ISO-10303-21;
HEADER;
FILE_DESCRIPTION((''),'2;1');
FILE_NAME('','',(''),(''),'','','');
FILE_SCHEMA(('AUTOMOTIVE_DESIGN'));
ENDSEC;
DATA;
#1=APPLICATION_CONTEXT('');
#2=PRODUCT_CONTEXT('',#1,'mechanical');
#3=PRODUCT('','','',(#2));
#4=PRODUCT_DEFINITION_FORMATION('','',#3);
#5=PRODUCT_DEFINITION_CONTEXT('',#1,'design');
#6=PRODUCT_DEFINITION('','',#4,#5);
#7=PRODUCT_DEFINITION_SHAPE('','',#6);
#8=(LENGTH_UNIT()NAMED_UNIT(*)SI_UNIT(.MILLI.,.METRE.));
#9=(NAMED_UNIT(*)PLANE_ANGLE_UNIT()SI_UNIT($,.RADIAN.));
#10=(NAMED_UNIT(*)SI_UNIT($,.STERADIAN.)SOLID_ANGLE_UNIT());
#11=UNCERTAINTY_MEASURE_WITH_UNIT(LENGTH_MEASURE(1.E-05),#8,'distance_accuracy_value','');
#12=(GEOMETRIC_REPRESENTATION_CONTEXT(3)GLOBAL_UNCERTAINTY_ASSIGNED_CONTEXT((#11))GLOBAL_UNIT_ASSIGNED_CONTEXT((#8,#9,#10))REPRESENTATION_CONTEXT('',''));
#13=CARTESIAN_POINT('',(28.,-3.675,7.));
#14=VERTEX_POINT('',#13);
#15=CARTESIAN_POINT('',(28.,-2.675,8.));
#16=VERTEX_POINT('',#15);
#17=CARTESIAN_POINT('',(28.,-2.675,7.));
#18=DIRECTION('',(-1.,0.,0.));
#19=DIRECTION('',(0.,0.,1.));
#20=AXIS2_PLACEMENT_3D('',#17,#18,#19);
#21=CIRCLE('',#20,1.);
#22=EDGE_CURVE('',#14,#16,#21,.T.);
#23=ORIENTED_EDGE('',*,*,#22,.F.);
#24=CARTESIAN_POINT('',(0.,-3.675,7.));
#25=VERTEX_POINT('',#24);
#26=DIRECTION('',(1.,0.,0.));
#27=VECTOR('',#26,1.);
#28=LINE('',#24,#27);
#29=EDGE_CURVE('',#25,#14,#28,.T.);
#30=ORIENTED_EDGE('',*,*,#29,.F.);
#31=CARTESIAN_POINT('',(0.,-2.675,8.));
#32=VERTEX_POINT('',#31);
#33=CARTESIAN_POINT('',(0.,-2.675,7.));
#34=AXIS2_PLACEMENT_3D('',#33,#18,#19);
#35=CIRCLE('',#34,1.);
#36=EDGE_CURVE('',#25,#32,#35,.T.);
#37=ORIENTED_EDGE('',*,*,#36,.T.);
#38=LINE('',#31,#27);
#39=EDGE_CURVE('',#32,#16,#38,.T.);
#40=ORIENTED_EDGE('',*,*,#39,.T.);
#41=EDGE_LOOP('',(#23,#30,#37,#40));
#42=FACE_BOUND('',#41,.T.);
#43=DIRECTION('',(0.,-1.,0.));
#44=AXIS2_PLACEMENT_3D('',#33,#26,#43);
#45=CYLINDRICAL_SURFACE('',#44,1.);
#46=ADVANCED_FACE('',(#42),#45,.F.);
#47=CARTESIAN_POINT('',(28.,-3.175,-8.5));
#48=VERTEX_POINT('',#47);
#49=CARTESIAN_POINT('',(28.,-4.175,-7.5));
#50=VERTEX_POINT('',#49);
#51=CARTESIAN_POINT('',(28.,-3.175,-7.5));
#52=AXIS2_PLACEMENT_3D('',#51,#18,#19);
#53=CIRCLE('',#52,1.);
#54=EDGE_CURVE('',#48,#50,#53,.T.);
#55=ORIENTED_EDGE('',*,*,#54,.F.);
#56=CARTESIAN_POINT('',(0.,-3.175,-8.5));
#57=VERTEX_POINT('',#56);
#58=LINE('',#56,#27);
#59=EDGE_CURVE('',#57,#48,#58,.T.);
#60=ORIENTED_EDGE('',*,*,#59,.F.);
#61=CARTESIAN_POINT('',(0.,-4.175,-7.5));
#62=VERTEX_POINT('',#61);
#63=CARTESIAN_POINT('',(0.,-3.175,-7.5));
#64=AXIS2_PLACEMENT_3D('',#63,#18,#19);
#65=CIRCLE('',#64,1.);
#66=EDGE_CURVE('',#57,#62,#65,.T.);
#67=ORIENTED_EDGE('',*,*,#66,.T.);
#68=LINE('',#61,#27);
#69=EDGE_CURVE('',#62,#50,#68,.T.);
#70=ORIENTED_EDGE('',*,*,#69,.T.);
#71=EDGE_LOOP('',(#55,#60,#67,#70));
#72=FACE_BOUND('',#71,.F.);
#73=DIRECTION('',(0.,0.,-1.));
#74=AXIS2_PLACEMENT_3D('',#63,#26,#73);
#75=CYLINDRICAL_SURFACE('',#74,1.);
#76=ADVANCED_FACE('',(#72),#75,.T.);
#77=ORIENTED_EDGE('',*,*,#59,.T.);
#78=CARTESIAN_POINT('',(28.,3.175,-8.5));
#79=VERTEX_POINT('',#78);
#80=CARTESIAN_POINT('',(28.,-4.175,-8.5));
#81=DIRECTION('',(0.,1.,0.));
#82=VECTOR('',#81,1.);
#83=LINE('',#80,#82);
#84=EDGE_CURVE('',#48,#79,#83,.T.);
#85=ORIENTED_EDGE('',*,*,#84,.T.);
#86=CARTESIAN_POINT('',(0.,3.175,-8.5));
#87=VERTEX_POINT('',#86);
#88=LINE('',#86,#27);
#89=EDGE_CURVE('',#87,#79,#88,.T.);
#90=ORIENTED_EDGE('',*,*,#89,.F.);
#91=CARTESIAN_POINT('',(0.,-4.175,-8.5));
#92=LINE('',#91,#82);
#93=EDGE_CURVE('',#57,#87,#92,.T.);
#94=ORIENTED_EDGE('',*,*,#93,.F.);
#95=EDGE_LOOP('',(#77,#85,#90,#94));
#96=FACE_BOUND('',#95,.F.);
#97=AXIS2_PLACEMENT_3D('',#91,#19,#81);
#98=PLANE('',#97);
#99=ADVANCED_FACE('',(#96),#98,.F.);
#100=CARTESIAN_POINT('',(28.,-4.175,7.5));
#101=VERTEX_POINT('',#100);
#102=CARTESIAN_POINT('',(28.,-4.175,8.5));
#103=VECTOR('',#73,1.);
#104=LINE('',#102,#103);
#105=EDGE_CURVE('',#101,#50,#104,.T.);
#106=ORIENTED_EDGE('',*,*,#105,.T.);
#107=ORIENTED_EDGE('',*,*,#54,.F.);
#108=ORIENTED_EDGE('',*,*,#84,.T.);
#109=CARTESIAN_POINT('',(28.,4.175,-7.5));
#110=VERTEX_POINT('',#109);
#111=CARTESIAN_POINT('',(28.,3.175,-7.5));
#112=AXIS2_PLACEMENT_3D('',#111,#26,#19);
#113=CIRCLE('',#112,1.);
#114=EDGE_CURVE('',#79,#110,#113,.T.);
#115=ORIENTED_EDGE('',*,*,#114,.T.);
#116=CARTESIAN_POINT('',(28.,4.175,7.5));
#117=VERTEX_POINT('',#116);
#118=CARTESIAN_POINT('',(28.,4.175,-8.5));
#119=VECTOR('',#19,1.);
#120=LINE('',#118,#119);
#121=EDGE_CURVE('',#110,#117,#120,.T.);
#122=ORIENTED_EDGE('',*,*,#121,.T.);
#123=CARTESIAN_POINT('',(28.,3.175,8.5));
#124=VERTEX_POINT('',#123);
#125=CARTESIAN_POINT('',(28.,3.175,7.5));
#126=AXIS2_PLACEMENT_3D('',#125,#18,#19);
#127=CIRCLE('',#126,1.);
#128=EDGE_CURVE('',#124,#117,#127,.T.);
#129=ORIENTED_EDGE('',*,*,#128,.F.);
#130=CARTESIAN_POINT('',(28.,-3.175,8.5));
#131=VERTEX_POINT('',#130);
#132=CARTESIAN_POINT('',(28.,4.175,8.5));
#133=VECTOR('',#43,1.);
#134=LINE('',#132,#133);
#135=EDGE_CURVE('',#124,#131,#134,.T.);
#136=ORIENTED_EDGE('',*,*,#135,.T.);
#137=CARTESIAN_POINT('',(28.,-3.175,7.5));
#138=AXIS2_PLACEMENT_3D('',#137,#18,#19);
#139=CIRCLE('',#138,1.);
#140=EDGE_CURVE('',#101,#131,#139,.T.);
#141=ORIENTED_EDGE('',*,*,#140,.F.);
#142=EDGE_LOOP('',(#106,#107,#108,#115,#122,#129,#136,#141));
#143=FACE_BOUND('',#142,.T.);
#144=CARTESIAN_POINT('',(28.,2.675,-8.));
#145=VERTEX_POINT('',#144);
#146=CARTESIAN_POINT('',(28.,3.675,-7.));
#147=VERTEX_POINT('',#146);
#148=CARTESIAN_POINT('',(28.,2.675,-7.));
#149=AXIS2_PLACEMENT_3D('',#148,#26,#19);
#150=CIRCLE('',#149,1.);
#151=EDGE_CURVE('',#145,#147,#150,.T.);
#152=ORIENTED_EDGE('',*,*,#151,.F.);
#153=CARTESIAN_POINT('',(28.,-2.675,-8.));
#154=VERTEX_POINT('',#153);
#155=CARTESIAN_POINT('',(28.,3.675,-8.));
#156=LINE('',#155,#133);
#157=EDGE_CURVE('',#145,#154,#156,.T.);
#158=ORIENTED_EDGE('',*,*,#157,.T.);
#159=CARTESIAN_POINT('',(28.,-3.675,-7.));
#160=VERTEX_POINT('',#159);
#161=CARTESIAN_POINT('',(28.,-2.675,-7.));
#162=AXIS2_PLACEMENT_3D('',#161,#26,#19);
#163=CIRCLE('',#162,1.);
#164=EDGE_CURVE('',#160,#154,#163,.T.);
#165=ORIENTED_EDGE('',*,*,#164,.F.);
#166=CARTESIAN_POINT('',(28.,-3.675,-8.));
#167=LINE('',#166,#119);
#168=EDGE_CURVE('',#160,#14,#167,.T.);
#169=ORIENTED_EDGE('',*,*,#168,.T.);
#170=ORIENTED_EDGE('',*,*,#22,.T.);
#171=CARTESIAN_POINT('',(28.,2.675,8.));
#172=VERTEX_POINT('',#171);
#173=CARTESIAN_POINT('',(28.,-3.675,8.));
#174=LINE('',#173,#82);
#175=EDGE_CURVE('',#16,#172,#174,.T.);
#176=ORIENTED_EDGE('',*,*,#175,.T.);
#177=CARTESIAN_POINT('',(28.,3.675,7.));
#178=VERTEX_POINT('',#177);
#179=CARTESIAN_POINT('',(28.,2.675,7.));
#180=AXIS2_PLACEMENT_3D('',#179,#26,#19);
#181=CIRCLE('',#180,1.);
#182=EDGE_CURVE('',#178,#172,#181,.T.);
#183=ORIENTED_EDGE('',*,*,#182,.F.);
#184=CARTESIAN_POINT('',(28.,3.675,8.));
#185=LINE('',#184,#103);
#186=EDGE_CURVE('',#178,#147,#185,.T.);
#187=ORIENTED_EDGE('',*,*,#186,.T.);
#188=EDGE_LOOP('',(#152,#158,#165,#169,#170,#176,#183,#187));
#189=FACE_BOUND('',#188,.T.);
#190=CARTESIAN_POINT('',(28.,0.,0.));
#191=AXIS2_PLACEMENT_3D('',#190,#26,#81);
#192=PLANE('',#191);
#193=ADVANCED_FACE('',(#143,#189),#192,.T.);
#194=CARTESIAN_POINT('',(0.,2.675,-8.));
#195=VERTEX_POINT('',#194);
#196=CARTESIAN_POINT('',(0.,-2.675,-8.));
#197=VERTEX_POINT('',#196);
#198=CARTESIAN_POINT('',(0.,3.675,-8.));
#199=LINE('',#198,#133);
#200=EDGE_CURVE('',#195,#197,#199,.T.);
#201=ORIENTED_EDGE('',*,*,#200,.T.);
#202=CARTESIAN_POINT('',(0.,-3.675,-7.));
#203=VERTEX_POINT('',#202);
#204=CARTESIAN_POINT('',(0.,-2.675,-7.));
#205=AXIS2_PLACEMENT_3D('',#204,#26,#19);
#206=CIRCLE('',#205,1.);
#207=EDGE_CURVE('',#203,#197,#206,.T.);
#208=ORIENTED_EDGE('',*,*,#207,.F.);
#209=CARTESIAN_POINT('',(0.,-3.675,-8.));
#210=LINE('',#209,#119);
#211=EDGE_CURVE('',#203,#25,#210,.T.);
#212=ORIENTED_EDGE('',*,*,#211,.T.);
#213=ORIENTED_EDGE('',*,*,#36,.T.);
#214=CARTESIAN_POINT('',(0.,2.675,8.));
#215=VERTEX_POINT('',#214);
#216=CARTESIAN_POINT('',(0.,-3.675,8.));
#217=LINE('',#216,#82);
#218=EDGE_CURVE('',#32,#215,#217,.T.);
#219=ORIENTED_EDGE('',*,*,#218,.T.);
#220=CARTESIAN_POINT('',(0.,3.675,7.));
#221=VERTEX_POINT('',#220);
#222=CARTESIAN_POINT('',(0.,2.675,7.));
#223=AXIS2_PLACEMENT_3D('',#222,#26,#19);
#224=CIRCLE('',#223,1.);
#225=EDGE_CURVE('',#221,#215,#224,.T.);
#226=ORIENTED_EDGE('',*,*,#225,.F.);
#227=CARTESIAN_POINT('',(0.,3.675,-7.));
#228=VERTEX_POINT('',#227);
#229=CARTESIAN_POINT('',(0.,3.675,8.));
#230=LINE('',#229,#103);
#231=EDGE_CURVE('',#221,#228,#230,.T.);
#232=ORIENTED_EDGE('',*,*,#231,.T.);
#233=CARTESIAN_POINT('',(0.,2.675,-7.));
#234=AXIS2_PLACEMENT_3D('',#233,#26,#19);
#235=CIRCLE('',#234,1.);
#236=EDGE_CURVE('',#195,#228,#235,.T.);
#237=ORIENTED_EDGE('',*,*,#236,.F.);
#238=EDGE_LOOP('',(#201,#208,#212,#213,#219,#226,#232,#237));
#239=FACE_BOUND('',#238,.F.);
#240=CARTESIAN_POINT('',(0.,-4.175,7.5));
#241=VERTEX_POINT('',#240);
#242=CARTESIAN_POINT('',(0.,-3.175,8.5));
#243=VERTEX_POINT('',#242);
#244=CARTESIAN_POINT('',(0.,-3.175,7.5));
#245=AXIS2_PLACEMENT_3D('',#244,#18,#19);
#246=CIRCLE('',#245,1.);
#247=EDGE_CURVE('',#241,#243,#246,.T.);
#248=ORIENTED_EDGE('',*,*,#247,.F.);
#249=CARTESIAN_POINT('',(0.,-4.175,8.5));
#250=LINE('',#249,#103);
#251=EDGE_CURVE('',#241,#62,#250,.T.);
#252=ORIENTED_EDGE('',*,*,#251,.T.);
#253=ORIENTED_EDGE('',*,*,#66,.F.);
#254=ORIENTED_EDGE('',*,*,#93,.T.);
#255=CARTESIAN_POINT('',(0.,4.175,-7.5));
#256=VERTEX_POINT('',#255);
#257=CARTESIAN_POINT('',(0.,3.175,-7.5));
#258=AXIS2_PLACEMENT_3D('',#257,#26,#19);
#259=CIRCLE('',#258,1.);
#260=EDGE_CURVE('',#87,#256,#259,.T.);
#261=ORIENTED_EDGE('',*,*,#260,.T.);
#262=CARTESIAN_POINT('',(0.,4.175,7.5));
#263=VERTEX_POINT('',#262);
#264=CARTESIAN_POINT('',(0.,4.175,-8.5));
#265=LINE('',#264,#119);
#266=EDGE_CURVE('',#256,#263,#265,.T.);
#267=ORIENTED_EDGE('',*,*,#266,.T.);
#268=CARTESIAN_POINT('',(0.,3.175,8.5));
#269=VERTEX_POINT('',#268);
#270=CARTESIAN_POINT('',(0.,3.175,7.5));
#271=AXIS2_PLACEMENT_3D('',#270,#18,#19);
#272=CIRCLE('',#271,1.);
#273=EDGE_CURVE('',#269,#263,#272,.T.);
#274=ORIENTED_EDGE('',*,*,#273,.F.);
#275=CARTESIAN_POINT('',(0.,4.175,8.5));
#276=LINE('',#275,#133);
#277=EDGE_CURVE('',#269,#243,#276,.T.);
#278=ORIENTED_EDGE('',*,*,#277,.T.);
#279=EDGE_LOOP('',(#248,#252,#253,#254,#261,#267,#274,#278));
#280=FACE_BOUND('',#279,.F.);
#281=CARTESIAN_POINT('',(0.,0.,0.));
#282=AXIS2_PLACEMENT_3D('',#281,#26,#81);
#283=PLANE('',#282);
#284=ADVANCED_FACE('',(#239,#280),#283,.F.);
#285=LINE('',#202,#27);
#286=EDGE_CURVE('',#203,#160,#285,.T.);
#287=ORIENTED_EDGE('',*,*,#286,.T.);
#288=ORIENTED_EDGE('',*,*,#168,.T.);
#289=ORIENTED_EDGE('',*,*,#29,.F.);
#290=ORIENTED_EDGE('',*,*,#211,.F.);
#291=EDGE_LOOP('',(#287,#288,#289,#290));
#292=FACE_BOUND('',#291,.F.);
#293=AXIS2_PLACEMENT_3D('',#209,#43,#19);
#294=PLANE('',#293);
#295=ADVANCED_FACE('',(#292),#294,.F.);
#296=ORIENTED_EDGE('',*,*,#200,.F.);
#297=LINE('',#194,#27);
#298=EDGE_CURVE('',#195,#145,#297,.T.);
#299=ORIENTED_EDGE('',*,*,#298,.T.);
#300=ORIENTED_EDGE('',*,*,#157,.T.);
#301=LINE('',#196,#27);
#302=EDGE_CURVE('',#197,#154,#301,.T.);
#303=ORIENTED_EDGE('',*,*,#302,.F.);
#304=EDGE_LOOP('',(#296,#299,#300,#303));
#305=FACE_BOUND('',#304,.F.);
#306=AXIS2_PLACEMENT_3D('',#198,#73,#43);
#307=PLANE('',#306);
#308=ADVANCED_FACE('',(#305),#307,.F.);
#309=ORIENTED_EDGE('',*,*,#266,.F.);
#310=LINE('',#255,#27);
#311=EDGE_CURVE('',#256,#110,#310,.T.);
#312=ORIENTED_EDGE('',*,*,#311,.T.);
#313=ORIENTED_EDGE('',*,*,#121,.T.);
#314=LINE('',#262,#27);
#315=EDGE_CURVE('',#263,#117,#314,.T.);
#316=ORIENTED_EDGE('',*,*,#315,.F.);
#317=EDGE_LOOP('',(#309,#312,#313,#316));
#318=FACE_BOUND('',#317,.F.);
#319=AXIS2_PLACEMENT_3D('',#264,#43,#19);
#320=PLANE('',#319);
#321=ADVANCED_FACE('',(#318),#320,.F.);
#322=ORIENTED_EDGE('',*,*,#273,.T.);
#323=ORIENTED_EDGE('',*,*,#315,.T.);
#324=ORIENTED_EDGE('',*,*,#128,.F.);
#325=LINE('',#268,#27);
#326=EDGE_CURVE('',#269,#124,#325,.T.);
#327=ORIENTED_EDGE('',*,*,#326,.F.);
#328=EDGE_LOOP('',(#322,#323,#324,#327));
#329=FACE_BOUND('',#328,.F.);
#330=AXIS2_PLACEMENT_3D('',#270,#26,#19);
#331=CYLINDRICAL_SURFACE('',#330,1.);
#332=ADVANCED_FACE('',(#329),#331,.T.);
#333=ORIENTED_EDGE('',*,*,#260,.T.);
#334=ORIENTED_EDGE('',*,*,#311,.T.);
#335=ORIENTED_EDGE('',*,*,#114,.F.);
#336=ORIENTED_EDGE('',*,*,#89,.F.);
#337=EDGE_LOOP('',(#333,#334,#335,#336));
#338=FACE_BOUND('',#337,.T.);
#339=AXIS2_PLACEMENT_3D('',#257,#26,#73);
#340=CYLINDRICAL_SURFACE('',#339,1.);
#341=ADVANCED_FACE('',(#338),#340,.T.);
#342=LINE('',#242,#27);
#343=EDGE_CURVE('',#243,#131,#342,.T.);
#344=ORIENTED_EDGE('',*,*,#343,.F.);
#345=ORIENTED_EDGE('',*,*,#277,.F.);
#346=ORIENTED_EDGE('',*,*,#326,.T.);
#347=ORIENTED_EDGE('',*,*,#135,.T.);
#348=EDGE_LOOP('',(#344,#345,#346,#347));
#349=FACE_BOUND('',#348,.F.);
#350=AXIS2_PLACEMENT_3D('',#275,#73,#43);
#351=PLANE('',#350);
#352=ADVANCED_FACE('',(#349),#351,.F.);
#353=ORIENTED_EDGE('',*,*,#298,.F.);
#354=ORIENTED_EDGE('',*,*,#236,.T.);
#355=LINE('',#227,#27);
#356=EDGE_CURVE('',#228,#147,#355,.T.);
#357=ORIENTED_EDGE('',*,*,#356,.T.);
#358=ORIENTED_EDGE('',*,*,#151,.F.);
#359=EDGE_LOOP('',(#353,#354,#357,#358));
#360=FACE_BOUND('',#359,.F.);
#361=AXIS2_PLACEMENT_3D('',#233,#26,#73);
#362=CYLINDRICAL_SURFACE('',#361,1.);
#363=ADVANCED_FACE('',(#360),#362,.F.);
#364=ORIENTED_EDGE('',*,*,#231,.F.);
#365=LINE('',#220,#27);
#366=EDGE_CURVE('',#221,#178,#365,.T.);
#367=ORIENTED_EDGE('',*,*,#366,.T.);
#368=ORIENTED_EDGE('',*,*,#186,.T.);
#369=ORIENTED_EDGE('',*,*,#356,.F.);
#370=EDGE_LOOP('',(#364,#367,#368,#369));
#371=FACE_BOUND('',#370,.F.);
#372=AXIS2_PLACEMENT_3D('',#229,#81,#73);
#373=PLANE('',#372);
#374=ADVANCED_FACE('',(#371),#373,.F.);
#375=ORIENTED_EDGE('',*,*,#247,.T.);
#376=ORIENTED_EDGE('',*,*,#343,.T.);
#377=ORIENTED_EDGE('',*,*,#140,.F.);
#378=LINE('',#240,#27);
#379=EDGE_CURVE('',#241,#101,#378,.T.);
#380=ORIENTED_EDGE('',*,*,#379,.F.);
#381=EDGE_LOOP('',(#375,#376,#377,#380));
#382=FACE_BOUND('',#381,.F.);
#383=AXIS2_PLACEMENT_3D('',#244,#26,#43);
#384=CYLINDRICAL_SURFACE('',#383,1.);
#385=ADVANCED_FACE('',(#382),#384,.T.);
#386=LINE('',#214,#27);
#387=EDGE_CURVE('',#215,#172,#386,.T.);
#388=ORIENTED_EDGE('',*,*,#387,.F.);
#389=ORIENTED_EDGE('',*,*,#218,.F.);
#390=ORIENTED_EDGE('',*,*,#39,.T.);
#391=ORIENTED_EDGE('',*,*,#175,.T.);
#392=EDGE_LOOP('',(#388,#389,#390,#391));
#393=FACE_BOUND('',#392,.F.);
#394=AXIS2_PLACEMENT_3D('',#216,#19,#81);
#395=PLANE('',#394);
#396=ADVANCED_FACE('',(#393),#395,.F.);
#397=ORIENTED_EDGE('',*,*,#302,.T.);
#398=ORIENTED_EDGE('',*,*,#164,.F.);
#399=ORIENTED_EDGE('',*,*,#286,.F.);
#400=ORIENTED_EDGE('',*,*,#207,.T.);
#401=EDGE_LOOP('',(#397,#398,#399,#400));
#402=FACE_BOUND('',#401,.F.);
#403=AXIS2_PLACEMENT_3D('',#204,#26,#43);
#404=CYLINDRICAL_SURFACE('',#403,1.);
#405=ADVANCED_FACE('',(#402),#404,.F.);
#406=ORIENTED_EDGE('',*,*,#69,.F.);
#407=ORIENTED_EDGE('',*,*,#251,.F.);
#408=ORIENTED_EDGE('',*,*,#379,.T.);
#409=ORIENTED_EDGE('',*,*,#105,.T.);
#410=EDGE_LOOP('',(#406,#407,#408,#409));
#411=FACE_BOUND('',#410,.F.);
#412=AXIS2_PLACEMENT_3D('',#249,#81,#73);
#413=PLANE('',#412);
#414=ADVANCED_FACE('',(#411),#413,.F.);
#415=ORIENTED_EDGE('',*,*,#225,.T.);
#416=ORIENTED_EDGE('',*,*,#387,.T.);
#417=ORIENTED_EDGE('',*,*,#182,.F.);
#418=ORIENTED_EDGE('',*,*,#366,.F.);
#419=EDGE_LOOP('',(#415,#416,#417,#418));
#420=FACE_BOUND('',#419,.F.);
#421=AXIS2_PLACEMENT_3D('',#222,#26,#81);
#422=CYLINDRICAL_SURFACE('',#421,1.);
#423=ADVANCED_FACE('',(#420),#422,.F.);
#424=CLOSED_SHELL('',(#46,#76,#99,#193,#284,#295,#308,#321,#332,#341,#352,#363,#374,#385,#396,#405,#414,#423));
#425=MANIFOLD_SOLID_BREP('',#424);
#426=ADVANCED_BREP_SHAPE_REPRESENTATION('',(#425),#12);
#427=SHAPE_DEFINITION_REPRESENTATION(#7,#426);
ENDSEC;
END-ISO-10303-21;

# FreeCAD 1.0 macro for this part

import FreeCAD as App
import Part
import Sketcher
from FreeCAD import Vector


def edges_at(feature, points):
    """Names of the edges that pass closest to the given points."""
    edges = feature.Shape.Edges
    near = lambda p: min(range(len(edges)), key=lambda i: edges[i].distToShape(Part.Vertex(*p))[0])
    return sorted({f"Edge{near(p) + 1}" for p in points})


def add_polygon(sketch, points):
    """Adds a closed chain of lines whose ends are joined by coincident constraints."""
    first, n = sketch.GeometryCount, len(points)
    for a, b in zip(points, points[1:] + points[:1]):
        sketch.addGeometry(Part.LineSegment(App.Vector(*a, 0), App.Vector(*b, 0)), False)
    for i in range(n):
        sketch.addConstraint(Sketcher.Constraint("Coincident", first + i, 2, first + (i + 1) % n, 1))

doc = App.newDocument("Part")
body = doc.addObject("PartDesign::Body", "Body")

sketch1 = body.newObject("Sketcher::SketchObject", "Sketch")
sketch1.AttachmentSupport = (doc.getObject("YZ_Plane"), [""])
sketch1.MapMode = "FlatFace"
add_polygon(sketch1, [(-4, -8), (4, -8), (4, 8), (-4, 8)])
add_polygon(sketch1, [(-4, -8), (-4, 8), (4, 8), (4, -8)])
sketch1.addConstraint([
    Sketcher.Constraint("Horizontal", 0),
    Sketcher.Constraint("Vertical", 1),
    Sketcher.Constraint("Horizontal", 2),
    Sketcher.Constraint("Vertical", 3),
    Sketcher.Constraint("Vertical", 4),
    Sketcher.Constraint("Horizontal", 5),
    Sketcher.Constraint("Vertical", 6),
    Sketcher.Constraint("Horizontal", 7),
    Sketcher.Constraint("Symmetric", 0, 2, 2, 2, -1, 1),
    Sketcher.Constraint("Symmetric", 4, 2, 6, 2, -1, 1),
    Sketcher.Constraint("DistanceY", 4, 1, 4, 2, 16.0),
    Sketcher.Constraint("DistanceX", 5, 1, 5, 2, 7.35),
    Sketcher.Constraint("DistanceX", 2, 2, 4, 2, 0.5),
    Sketcher.Constraint("DistanceY", 4, 2, 2, 2, 0.5),
])
pad1 = body.newObject("PartDesign::Pad", "Pad")
pad1.Profile = sketch1
pad1.Length = 28
doc.recompute()

fillet = body.newObject("PartDesign::Fillet", "Fillet")
fillet.Base = (pad1, edges_at(pad1, [
    (14, -3.675, -8),
    (14, 3.675, -8),
    (14, 4.175, -8.5),
    (14, 4.175, 8.5),
    (14, 3.675, 8),
    (14, -4.175, -8.5),
    (14, -3.675, 8),
    (14, -4.175, 8.5),
]))
fillet.Radius = 1

doc.recompute()
